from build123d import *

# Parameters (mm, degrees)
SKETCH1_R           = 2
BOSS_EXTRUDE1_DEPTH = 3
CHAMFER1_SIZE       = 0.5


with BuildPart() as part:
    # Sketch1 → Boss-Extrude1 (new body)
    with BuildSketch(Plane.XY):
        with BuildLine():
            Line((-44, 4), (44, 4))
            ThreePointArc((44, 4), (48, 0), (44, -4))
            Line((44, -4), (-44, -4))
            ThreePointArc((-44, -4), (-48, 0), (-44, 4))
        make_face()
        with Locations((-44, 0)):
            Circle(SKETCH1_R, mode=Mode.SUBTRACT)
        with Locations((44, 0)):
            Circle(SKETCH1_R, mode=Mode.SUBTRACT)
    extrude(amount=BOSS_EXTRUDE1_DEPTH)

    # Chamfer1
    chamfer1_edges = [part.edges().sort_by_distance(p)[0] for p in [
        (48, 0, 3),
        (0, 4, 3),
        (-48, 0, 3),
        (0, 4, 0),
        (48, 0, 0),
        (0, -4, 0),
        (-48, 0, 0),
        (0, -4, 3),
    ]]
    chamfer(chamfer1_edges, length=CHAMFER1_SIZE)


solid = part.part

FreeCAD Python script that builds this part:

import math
import FreeCAD as App
import Part
import Sketcher
Q = App.Units.Quantity


def edges_at(feature, points):
    """Names of the edges that pass closest to the given points."""
    edges = feature.Shape.Edges
    near = lambda p: min(range(len(edges)), key=lambda i: edges[i].distToShape(Part.Vertex(*p))[0])
    return sorted({f"Edge{near(p) + 1}" for p in points})

doc = App.newDocument("Part")
params = doc.addObject("Spreadsheet::Sheet", "Params")
for row, (alias, value) in enumerate([
    ("sketch1_diameter", "4 mm"),
    ("sketch1_radius", "4 mm"),
    ("sketch1_width", "88 mm"),
    ("pad1_length", "3 mm"),
    ("chamfer_size", "0.5 mm"),
], start=1):
    params.set(f"A{row}", alias)
    params.set(f"B{row}", "=" + value)
    params.setAlias(f"B{row}", alias)

body = doc.addObject("PartDesign::Body", "Body")

# Sketch on XY plane
sketch1 = body.newObject("Sketcher::SketchObject", "Sketch")
sketch1.AttachmentSupport = (doc.getObject("XY_Plane"), [""])
sketch1.MapMode = "FlatFace"
sketch1.addGeometry([
    Part.LineSegment(App.Vector(44, 4, 0), App.Vector(-44, 4, 0)),  # 0
    Part.ArcOfCircle(Part.Circle(App.Vector(-44, 0, 0), App.Vector(0, 0, 1), 4), math.radians(90), math.radians(270)),  # 1
    Part.LineSegment(App.Vector(-44, -4, 0), App.Vector(44, -4, 0)),  # 2
    Part.ArcOfCircle(Part.Circle(App.Vector(44, 0, 0), App.Vector(0, 0, 1), 4), math.radians(-90), math.radians(90)),  # 3
    Part.Circle(App.Vector(44, 0, 0), App.Vector(0, 0, 1), 2),  # 4
    Part.Circle(App.Vector(-44, 0, 0), App.Vector(0, 0, 1), 2),  # 5
], False)
sketch1.addConstraint([
    Sketcher.Constraint("Tangent", 0, 2, 1, 1),
    Sketcher.Constraint("Tangent", 1, 2, 2, 1),
    Sketcher.Constraint("Tangent", 2, 2, 3, 1),
    Sketcher.Constraint("Tangent", 3, 2, 0, 1),
    Sketcher.Constraint("Horizontal", 0),
    Sketcher.Constraint("Horizontal", 2),
    Sketcher.Constraint("Coincident", 4, 3, 3, 3),
    Sketcher.Constraint("Coincident", 5, 3, 1, 3),
    Sketcher.Constraint("Equal", 4, 5),
    Sketcher.Constraint("Symmetric", 1, 3, 3, 3, -1, 1),
    Sketcher.Constraint("Diameter", 4, Q("4 mm")),
    Sketcher.Constraint("Radius", 1, Q("4 mm")),
    Sketcher.Constraint("DistanceX", 0, 2, 0, 1, Q("88 mm")),
])
sketch1.setExpression("Constraints[10]", "Params.sketch1_diameter")
sketch1.setExpression("Constraints[11]", "Params.sketch1_radius")
sketch1.setExpression("Constraints[12]", "Params.sketch1_width")
pad1 = body.newObject("PartDesign::Pad", "Pad")
pad1.Profile = sketch1
pad1.setExpression("Length", "Params.pad1_length")
doc.recompute()

chamfer = body.newObject("PartDesign::Chamfer", "Chamfer")
chamfer.Base = (pad1, edges_at(pad1, [
    (48, 0, 3),
    (0, 4, 3),
    (-48, 0, 3),
    (0, 4, 0),
    (48, 0, 0),
    (0, -4, 0),
    (-48, 0, 0),
    (0, -4, 3),
]))
chamfer.setExpression("Size", "Params.chamfer_size")

doc.recompute()
